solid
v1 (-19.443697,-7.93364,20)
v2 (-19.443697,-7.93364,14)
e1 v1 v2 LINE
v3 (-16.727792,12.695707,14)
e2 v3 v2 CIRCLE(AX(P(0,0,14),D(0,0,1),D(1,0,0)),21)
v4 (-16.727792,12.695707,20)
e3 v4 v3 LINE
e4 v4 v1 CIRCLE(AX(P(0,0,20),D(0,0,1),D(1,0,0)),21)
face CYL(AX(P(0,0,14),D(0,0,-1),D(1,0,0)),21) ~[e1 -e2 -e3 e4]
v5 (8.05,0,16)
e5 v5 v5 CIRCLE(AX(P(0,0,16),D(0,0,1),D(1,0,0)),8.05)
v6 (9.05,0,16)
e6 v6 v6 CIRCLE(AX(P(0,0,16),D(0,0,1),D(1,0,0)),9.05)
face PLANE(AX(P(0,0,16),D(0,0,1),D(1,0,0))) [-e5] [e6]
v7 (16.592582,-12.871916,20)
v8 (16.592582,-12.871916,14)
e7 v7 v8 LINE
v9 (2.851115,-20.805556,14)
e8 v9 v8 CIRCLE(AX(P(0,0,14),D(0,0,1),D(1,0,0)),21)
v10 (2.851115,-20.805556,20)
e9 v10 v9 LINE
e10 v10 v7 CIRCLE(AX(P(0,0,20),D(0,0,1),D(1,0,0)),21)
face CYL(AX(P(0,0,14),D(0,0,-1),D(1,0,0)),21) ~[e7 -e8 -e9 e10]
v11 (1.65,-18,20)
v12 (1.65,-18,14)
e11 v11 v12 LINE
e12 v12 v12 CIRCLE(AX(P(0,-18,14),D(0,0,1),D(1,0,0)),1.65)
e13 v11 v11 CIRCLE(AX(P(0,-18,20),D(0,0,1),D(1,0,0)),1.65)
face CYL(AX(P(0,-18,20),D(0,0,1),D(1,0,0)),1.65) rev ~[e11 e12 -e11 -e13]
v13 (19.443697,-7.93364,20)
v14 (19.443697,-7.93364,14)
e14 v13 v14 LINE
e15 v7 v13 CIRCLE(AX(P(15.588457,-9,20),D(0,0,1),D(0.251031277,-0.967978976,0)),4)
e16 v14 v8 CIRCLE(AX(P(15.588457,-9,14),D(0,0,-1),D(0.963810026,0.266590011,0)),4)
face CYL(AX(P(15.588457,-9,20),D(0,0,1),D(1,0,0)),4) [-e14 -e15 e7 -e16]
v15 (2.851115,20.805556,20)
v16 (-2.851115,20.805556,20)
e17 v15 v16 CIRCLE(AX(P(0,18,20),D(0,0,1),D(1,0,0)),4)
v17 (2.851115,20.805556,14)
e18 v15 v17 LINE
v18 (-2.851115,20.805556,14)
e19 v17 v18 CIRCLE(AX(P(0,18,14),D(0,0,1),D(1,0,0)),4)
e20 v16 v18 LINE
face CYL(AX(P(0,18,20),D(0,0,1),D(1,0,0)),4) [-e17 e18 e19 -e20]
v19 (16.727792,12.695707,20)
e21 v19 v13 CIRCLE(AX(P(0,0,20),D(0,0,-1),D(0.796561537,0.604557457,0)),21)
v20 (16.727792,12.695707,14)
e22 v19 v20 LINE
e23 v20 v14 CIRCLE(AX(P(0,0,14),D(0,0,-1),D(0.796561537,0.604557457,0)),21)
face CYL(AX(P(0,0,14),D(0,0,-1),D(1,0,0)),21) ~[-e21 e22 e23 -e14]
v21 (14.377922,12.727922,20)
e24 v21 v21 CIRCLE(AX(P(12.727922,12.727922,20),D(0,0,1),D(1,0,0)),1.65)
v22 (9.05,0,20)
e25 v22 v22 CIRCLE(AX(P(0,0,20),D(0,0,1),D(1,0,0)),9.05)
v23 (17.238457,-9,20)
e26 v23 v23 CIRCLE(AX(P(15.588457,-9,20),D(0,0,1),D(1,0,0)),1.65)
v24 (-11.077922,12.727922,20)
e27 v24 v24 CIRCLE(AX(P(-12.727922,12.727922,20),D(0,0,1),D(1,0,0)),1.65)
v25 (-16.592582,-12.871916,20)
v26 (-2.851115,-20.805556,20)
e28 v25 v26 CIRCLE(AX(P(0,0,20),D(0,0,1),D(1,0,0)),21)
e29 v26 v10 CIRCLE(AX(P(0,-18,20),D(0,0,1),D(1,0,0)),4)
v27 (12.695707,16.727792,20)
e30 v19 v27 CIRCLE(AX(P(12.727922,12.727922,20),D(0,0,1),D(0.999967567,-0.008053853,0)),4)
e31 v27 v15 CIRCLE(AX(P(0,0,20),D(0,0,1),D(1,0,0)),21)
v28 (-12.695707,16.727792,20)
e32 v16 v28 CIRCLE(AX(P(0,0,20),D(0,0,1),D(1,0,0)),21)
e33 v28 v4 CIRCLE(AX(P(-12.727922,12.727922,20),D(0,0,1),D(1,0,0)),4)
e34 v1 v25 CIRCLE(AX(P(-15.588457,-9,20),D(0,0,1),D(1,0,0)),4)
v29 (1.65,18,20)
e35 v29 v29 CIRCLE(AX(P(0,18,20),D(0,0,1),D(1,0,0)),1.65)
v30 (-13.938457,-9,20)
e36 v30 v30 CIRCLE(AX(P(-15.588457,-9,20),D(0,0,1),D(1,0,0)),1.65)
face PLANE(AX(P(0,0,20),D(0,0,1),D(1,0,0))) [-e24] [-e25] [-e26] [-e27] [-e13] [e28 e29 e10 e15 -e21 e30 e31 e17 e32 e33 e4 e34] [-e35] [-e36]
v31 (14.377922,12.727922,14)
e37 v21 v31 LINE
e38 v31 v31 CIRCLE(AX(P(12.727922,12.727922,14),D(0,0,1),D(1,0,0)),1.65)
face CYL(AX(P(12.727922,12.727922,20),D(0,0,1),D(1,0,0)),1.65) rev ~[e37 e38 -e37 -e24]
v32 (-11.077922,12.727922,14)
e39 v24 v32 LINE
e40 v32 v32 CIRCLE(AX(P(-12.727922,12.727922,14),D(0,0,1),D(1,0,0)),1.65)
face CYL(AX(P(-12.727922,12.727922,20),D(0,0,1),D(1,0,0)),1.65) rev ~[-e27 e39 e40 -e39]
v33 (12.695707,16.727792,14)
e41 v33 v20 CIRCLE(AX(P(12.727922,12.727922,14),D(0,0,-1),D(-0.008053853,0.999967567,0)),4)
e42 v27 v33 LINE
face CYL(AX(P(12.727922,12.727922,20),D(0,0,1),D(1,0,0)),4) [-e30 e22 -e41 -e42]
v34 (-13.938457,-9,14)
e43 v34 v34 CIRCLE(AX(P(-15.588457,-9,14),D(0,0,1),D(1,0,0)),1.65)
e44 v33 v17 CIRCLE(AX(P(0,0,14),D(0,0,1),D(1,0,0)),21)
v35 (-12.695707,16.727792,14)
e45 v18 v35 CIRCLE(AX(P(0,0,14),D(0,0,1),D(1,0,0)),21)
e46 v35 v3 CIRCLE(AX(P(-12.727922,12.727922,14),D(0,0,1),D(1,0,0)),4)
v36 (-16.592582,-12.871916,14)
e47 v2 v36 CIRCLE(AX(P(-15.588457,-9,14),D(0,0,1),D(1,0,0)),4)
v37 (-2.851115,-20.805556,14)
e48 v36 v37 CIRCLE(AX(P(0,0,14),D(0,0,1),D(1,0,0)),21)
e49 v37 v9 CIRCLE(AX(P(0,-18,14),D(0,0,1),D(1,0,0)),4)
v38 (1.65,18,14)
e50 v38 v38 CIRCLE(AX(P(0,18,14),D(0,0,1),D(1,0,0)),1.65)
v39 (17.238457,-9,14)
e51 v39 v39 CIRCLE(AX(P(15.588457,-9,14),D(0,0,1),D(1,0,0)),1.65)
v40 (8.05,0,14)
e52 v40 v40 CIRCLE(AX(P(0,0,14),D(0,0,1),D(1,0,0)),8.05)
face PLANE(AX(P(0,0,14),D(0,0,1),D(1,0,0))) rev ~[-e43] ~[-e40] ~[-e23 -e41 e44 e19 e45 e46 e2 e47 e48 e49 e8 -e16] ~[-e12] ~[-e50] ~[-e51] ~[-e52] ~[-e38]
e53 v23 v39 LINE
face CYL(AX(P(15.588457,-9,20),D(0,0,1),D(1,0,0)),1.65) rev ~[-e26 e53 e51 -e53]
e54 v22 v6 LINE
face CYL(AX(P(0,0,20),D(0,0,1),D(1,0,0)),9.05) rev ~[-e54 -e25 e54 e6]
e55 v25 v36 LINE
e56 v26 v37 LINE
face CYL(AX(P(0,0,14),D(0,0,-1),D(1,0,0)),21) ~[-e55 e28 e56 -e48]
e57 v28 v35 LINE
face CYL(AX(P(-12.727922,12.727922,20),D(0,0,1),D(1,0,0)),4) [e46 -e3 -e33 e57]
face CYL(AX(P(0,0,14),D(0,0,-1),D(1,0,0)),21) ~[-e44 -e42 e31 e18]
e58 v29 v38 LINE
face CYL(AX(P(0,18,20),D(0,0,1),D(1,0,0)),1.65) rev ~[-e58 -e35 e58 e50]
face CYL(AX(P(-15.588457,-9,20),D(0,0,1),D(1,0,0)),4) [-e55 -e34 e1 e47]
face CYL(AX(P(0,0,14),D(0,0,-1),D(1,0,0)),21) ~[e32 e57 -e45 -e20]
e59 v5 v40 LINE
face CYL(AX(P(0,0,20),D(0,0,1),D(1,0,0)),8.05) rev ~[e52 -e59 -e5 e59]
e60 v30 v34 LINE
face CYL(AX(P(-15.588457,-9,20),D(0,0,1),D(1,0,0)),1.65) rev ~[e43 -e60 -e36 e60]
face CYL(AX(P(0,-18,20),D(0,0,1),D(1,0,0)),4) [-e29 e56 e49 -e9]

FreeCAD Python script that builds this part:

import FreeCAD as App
import Part
import Sketcher
from FreeCAD import Vector
Q = App.Units.Quantity

doc = App.newDocument("Part")
params = doc.addObject("Spreadsheet::Sheet", "Params")
for row, (alias, value) in enumerate([
    ("sketch1_diameter", "42 mm"),
    ("pad1_length", "6 mm"),
    ("sketch2_diameter", "8 mm"),
    ("pad2_length", "6 mm"),
    ("sketch3_diameter", "3.3 mm"),
    ("sketch4_diameter", "18.1 mm"),
    ("pocket2_length", "4 mm"),
    ("sketch5_diameter", "16.1 mm"),
], start=1):
    params.set(f"A{row}", alias)
    params.set(f"B{row}", "=" + value)
    params.setAlias(f"B{row}", alias)

body = doc.addObject("PartDesign::Body", "Body")

sketch1 = doc.addObject("Sketcher::SketchObject", "Sketch")
body.addObject(sketch1)
sketch1.AttachmentSupport = (doc.XY_Plane, [""])
sketch1.MapMode = "FlatFace"
sketch1.addGeometry(Part.Circle(Vector(0, 0, 0), Vector(0, 0, 1), 21), False)
sketch1.addConstraint([
    Sketcher.Constraint("Coincident", 0, 3, -1, 1),
    Sketcher.Constraint("Diameter", 0, Q("42 mm")),
])
sketch1.setExpression("Constraints[1]", "Params.sketch1_diameter")
pad1 = doc.addObject("PartDesign::Pad", "Pad")
body.addObject(pad1)
pad1.Profile = sketch1
pad1.setExpression("Length", "Params.pad1_length")

sketch2 = doc.addObject("Sketcher::SketchObject", "Sketch001")
body.addObject(sketch2)
sketch2.AttachmentSupport = (doc.XY_Plane, [""])
sketch2.MapMode = "FlatFace"
sketch2.AttachmentOffset = App.Placement(Vector(0, 0, 6), App.Rotation())
sketch2.addGeometry([
    Part.Circle(Vector(-12.7, 12.7, 0), Vector(0, 0, 1), 4),
    Part.Circle(Vector(0, 18, 0), Vector(0, 0, 1), 4),
    Part.Circle(Vector(12.7, 12.7, 0), Vector(0, 0, 1), 4),
    Part.Circle(Vector(15.6, -9, 0), Vector(0, 0, 1), 4),
    Part.Circle(Vector(-15.6, -9, 0), Vector(0, 0, 1), 4),
    Part.Circle(Vector(0, -18, 0), Vector(0, 0, 1), 4),
], False)
sketch2.addConstraint([
    Sketcher.Constraint("Equal", 0, 1),
    Sketcher.Constraint("Equal", 1, 2),
    Sketcher.Constraint("Equal", 2, 3),
    Sketcher.Constraint("Equal", 3, 4),
    Sketcher.Constraint("Equal", 4, 5),
    Sketcher.Constraint("Symmetric", 1, 3, 5, 3, -1, 1),
    Sketcher.Constraint("Symmetric", 0, 3, 2, 3, -2),
    Sketcher.Constraint("Symmetric", 3, 3, 4, 3, -2),
    Sketcher.Constraint("PointOnObject", 1, 3, -2),
    Sketcher.Constraint("Diameter", 0, Q("8 mm")),
    Sketcher.Constraint("DistanceY", -1, 1, 1, 3, Q("18 mm")),
    Sketcher.Constraint("DistanceY", 3, 3, -1, 1, Q("9 mm")),
    Sketcher.Constraint("DistanceY", 0, 3, 1, 3, Q("5.272078 mm")),
    Sketcher.Constraint("DistanceX", 0, 3, 3, 3, Q("28.316379 mm")),
    Sketcher.Constraint("DistanceX", 0, 3, -1, 1, Q("12.727922 mm")),
])
sketch2.setExpression("Constraints[9]", "Params.sketch2_diameter")
pad2 = doc.addObject("PartDesign::Pad", "Pad001")
body.addObject(pad2)
pad2.Profile = sketch2
pad2.setExpression("Length", "Params.pad2_length")
pad2.Reversed = True

sketch3 = doc.addObject("Sketcher::SketchObject", "Sketch002")
body.addObject(sketch3)
sketch3.AttachmentSupport = (doc.XY_Plane, [""])
sketch3.MapMode = "FlatFace"
sketch3.AttachmentOffset = App.Placement(Vector(0, 0, 6), App.Rotation())
sketch3.addGeometry([
    Part.Circle(Vector(-12.7, 12.7, 0), Vector(0, 0, 1), 1.6),
    Part.Circle(Vector(0, 18, 0), Vector(0, 0, 1), 1.6),
    Part.Circle(Vector(12.7, 12.7, 0), Vector(0, 0, 1), 1.6),
    Part.Circle(Vector(-15.6, -9, 0), Vector(0, 0, 1), 1.6),
    Part.Circle(Vector(15.6, -9, 0), Vector(0, 0, 1), 1.6),
    Part.Circle(Vector(0, -18, 0), Vector(0, 0, 1), 1.6),
], False)
sketch3.addConstraint([
    Sketcher.Constraint("Equal", 0, 1),
    Sketcher.Constraint("Equal", 1, 2),
    Sketcher.Constraint("Equal", 2, 3),
    Sketcher.Constraint("Equal", 3, 4),
    Sketcher.Constraint("Equal", 4, 5),
    Sketcher.Constraint("Symmetric", 1, 3, 5, 3, -1, 1),
    Sketcher.Constraint("Symmetric", 0, 3, 2, 3, -2),
    Sketcher.Constraint("Symmetric", 3, 3, 4, 3, -2),
    Sketcher.Constraint("PointOnObject", 1, 3, -2),
    Sketcher.Constraint("Diameter", 0, Q("3.3 mm")),
    Sketcher.Constraint("DistanceY", -1, 1, 1, 3, Q("18 mm")),
    Sketcher.Constraint("DistanceY", 3, 3, -1, 1, Q("9 mm")),
    Sketcher.Constraint("DistanceY", 0, 3, 1, 3, Q("5.272078 mm")),
    Sketcher.Constraint("DistanceX", 3, 3, 2, 3, Q("28.316379 mm")),
    Sketcher.Constraint("DistanceX", 0, 3, -1, 1, Q("12.727922 mm")),
])
sketch3.setExpression("Constraints[9]", "Params.sketch3_diameter")
pocket1 = doc.addObject("PartDesign::Pocket", "Pocket")
body.addObject(pocket1)
pocket1.Profile = sketch3
pocket1.Type = "ThroughAll"

sketch4 = doc.addObject("Sketcher::SketchObject", "Sketch003")
body.addObject(sketch4)
sketch4.AttachmentSupport = (doc.XY_Plane, [""])
sketch4.MapMode = "FlatFace"
sketch4.AttachmentOffset = App.Placement(Vector(0, 0, 6), App.Rotation())
sketch4.addGeometry(Part.Circle(Vector(0, 0, 0), Vector(0, 0, 1), 9), False)
sketch4.addConstraint([
    Sketcher.Constraint("Coincident", 0, 3, -1, 1),
    Sketcher.Constraint("Diameter", 0, Q("18.1 mm")),
])
sketch4.setExpression("Constraints[1]", "Params.sketch4_diameter")
pocket2 = doc.addObject("PartDesign::Pocket", "Pocket001")
body.addObject(pocket2)
pocket2.Profile = sketch4
pocket2.setExpression("Length", "Params.pocket2_length")

sketch5 = doc.addObject("Sketcher::SketchObject", "Sketch004")
body.addObject(sketch5)
sketch5.AttachmentSupport = (doc.XY_Plane, [""])
sketch5.MapMode = "FlatFace"
sketch5.AttachmentOffset = App.Placement(Vector(0, 0, 6), App.Rotation())
sketch5.addGeometry(Part.Circle(Vector(0, 0, 0), Vector(0, 0, 1), 8), False)
sketch5.addConstraint([
    Sketcher.Constraint("Coincident", 0, 3, -1, 1),
    Sketcher.Constraint("Diameter", 0, Q("16.1 mm")),
])
sketch5.setExpression("Constraints[1]", "Params.sketch5_diameter")
pocket3 = doc.addObject("PartDesign::Pocket", "Pocket002")
body.addObject(pocket3)
pocket3.Profile = sketch5
pocket3.Type = "ThroughAll"
body2 = doc.addObject("PartDesign::Body", "Body001")
doc.recompute()

body.Placement = App.Placement(Vector(0, 0, 14), App.Rotation(Vector(0, 0, 1), 0))
boolean = doc.addObject("PartDesign::Boolean", "Boolean")
body2.addObject(boolean)
boolean.Type = "Fuse"
boolean.addObjects([body])

doc.recompute()
